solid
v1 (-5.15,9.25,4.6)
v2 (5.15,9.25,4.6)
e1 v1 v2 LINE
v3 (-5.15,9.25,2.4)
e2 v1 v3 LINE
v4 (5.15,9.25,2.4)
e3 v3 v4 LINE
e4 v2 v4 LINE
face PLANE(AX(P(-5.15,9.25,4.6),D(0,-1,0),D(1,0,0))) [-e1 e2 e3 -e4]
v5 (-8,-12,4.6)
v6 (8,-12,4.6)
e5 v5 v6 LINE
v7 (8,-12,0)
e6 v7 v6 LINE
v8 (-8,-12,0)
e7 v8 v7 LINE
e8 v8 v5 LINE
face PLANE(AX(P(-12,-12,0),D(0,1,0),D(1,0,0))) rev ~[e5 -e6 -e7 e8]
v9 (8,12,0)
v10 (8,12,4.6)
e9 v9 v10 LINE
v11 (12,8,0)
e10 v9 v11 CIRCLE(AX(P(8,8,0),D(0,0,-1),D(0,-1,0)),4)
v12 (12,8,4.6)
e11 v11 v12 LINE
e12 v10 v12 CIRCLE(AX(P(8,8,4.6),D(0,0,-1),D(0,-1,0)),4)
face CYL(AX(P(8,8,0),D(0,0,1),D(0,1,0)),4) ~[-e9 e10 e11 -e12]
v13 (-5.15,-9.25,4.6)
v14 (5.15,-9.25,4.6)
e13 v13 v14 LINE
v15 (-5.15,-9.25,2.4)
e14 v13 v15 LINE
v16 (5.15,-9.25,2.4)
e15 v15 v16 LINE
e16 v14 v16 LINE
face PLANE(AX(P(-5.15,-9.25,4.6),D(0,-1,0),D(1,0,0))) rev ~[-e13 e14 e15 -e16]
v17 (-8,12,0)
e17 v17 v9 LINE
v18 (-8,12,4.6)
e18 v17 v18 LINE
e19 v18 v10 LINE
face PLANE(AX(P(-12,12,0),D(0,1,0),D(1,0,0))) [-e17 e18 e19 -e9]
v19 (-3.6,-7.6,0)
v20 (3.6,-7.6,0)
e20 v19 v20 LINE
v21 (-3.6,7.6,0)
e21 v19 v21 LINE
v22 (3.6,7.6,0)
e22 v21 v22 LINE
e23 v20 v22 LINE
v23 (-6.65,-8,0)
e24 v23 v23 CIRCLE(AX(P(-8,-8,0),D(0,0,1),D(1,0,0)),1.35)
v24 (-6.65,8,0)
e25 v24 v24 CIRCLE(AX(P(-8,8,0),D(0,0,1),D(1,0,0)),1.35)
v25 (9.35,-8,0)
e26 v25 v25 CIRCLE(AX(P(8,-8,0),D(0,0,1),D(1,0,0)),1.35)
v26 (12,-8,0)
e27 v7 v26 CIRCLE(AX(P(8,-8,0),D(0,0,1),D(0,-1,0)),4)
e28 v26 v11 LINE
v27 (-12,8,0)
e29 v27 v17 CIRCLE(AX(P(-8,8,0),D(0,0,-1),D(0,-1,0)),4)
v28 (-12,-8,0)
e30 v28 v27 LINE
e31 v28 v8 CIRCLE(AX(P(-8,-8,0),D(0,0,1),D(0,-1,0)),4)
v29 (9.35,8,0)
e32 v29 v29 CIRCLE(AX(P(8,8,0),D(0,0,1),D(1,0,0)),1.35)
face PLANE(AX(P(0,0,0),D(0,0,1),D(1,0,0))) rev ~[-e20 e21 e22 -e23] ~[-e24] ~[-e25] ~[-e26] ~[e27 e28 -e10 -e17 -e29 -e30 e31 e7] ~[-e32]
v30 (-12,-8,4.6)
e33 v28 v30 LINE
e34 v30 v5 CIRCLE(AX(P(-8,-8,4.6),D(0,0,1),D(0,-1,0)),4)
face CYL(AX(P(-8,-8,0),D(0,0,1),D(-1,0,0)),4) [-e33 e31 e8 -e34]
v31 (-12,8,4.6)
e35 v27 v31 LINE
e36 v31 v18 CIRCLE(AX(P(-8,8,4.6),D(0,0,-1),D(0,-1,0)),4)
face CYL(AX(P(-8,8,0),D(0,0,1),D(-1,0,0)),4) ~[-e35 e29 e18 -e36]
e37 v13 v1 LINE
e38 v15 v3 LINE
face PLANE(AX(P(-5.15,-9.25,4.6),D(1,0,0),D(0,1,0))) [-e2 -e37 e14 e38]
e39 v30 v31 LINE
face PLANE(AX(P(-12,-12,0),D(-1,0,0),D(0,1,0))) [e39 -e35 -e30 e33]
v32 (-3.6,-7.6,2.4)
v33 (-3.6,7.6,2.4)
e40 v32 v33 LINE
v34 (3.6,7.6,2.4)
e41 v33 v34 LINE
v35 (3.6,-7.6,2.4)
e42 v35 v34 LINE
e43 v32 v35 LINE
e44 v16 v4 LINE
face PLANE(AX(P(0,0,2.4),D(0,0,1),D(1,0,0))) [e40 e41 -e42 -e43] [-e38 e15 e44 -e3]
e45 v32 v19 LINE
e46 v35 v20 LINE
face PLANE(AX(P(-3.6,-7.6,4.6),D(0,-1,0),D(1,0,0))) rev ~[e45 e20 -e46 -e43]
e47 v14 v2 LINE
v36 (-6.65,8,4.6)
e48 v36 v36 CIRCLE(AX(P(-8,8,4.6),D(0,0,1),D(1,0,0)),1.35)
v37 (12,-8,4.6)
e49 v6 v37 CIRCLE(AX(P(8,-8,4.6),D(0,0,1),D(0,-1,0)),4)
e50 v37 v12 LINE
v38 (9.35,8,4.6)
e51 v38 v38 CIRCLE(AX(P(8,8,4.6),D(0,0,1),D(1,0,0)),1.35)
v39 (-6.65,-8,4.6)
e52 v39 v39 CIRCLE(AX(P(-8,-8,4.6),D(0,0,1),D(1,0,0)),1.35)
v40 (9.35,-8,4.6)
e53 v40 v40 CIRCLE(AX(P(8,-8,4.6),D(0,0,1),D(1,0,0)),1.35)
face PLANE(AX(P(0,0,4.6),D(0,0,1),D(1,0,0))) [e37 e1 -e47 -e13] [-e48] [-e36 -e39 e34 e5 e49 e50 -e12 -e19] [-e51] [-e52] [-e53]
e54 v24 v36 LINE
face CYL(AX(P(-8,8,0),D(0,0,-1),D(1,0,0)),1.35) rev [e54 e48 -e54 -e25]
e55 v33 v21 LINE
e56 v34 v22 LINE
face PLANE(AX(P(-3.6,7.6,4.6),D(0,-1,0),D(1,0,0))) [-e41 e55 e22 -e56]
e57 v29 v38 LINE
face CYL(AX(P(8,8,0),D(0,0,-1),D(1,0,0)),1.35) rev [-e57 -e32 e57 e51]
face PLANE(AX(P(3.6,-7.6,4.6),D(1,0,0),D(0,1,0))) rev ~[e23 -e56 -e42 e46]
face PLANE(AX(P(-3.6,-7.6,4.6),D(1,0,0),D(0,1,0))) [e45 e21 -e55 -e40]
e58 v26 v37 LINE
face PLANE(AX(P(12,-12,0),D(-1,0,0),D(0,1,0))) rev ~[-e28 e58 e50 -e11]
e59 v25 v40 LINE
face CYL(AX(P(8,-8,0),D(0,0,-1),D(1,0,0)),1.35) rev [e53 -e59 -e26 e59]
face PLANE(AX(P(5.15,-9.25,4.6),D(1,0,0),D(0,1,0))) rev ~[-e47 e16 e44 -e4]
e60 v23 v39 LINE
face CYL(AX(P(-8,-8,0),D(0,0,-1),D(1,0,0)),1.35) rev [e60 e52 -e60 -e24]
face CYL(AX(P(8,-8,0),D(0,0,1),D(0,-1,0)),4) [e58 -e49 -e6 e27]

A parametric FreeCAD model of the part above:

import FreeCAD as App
import Part
import Sketcher

V = App.Vector
Q = App.Units.Quantity


def edges_at(feature, points):
    """Names of the edges that pass closest to the given points."""
    edges = feature.Shape.Edges
    near = lambda p: min(range(len(edges)), key=lambda i: edges[i].distToShape(Part.Vertex(*p))[0])
    return sorted({f"Edge{near(p) + 1}" for p in points})


def add_polygon(sketch, points):
    """Adds a closed chain of lines whose ends are joined by coincident constraints."""
    first, n = sketch.GeometryCount, len(points)
    for a, b in zip(points, points[1:] + points[:1]):
        sketch.addGeometry(Part.LineSegment(App.Vector(*a, 0), App.Vector(*b, 0)), False)
    for i in range(n):
        sketch.addConstraint(Sketcher.Constraint("Coincident", first + i, 2, first + (i + 1) % n, 1))

doc = App.newDocument("Part")
body = doc.addObject("PartDesign::Body", "Body")

# Sketch on XY plane
sketch1 = doc.addObject("Sketcher::SketchObject", "Sketch")
body.addObject(sketch1)
sketch1.AttachmentSupport = (doc.XY_Plane, [""])
sketch1.MapMode = "FlatFace"
add_polygon(sketch1, [(-12, 12), (-12, -12), (12, -12), (12, 12)])  # lines 0-3
sketch1.addGeometry(Part.Circle(V(-8, -8, 0), V(0, 0, 1), 1.35), False)  # 4
sketch1.addGeometry(Part.Circle(V(8, -8, 0), V(0, 0, 1), 1.35), False)  # 5
sketch1.addGeometry(Part.Circle(V(-8, 8, 0), V(0, 0, 1), 1.35), False)  # 6
sketch1.addGeometry(Part.Circle(V(8, 8, 0), V(0, 0, 1), 1.35), False)  # 7
sketch1.addConstraint([
    Sketcher.Constraint("Vertical", 0),
    Sketcher.Constraint("Horizontal", 1),
    Sketcher.Constraint("Vertical", 2),
    Sketcher.Constraint("Horizontal", 3),
    Sketcher.Constraint("Equal", 4, 5),
    Sketcher.Constraint("Equal", 5, 6),
    Sketcher.Constraint("Equal", 6, 7),
    Sketcher.Constraint("Symmetric", 5, 3, 6, 3, -1, 1),
    Sketcher.Constraint("Symmetric", 4, 3, 7, 3, -1, 1),
    Sketcher.Constraint("Symmetric", 0, 2, 2, 2, -1, 1),
    Sketcher.Constraint("Symmetric", 4, 3, 5, 3, -2),
    Sketcher.Constraint("Equal", 3, 0),
    Sketcher.Constraint("Diameter", 4, Q("2.7 mm")),
    Sketcher.Constraint("DistanceX", 1, 1, 1, 2, Q("24 mm")),
    Sketcher.Constraint("DistanceX", 4, 3, -1, 1, Q("8 mm")),
    Sketcher.Constraint("DistanceY", 4, 3, -1, 1, Q("8 mm")),
])
pad1 = doc.addObject("PartDesign::Pad", "Pad")
body.addObject(pad1)
pad1.Profile = sketch1
pad1.Length = 4.6

# Sketch on XY plane
sketch2 = doc.addObject("Sketcher::SketchObject", "Sketch001")
body.addObject(sketch2)
sketch2.AttachmentSupport = (doc.XY_Plane, [""])
sketch2.MapMode = "FlatFace"
sketch2.AttachmentOffset = App.Placement(V(0, 0, 4.6), App.Rotation())
add_polygon(sketch2, [(-3.6, 7.6), (-3.6, -7.6), (3.6, -7.6), (3.6, 7.6)])  # lines 0-3
sketch2.addConstraint([
    Sketcher.Constraint("Vertical", 0),
    Sketcher.Constraint("Horizontal", 1),
    Sketcher.Constraint("Vertical", 2),
    Sketcher.Constraint("Horizontal", 3),
    Sketcher.Constraint("Symmetric", 0, 2, 2, 2, -1, 1),
    Sketcher.Constraint("DistanceX", 1, 1, 1, 2, Q("7.2 mm")),
    Sketcher.Constraint("DistanceY", 0, 2, 0, 1, Q("15.2 mm")),
])
pocket1 = doc.addObject("PartDesign::Pocket", "Pocket")
body.addObject(pocket1)
pocket1.Profile = sketch2
pocket1.Type = "ThroughAll"

# Sketch on XY plane
sketch3 = doc.addObject("Sketcher::SketchObject", "Sketch002")
body.addObject(sketch3)
sketch3.AttachmentSupport = (doc.XY_Plane, [""])
sketch3.MapMode = "FlatFace"
sketch3.AttachmentOffset = App.Placement(V(0, 0, 4.6), App.Rotation())
add_polygon(sketch3, [(-5.15, 9.25), (-5.15, -9.25), (5.15, -9.25), (5.15, 9.25)])  # lines 0-3
add_polygon(sketch3, [(3.6, -7.6), (-3.6, -7.6), (-3.6, 7.6), (3.6, 7.6)])  # lines 4-7
sketch3.addConstraint([
    Sketcher.Constraint("Vertical", 0),
    Sketcher.Constraint("Horizontal", 1),
    Sketcher.Constraint("Vertical", 2),
    Sketcher.Constraint("Horizontal", 3),
    Sketcher.Constraint("Horizontal", 4),
    Sketcher.Constraint("Vertical", 5),
    Sketcher.Constraint("Horizontal", 6),
    Sketcher.Constraint("Vertical", 7),
    Sketcher.Constraint("Symmetric", 0, 2, 2, 2, -1, 1),
    Sketcher.Constraint("Symmetric", 4, 2, 6, 2, -1, 1),
    Sketcher.Constraint("DistanceX", 1, 1, 1, 2, Q("10.3 mm")),
    Sketcher.Constraint("DistanceX", 4, 2, 4, 1, Q("7.2 mm")),
    Sketcher.Constraint("DistanceY", 0, 2, 0, 1, Q("18.5 mm")),
    Sketcher.Constraint("DistanceY", 5, 1, 5, 2, Q("15.2 mm")),
])
pocket2 = doc.addObject("PartDesign::Pocket", "Pocket001")
body.addObject(pocket2)
pocket2.Profile = sketch3
pocket2.Length = 2.2
doc.recompute()

fillet = doc.addObject("PartDesign::Fillet", "Fillet")
body.addObject(fillet)
fillet.Base = (pocket2, edges_at(pocket2, [
    (-12, 12, 2.3),
    (12, 12, 2.3),
    (12, -12, 2.3),
    (-12, -12, 2.3),
]))
fillet.Radius = 4

doc.recompute()
